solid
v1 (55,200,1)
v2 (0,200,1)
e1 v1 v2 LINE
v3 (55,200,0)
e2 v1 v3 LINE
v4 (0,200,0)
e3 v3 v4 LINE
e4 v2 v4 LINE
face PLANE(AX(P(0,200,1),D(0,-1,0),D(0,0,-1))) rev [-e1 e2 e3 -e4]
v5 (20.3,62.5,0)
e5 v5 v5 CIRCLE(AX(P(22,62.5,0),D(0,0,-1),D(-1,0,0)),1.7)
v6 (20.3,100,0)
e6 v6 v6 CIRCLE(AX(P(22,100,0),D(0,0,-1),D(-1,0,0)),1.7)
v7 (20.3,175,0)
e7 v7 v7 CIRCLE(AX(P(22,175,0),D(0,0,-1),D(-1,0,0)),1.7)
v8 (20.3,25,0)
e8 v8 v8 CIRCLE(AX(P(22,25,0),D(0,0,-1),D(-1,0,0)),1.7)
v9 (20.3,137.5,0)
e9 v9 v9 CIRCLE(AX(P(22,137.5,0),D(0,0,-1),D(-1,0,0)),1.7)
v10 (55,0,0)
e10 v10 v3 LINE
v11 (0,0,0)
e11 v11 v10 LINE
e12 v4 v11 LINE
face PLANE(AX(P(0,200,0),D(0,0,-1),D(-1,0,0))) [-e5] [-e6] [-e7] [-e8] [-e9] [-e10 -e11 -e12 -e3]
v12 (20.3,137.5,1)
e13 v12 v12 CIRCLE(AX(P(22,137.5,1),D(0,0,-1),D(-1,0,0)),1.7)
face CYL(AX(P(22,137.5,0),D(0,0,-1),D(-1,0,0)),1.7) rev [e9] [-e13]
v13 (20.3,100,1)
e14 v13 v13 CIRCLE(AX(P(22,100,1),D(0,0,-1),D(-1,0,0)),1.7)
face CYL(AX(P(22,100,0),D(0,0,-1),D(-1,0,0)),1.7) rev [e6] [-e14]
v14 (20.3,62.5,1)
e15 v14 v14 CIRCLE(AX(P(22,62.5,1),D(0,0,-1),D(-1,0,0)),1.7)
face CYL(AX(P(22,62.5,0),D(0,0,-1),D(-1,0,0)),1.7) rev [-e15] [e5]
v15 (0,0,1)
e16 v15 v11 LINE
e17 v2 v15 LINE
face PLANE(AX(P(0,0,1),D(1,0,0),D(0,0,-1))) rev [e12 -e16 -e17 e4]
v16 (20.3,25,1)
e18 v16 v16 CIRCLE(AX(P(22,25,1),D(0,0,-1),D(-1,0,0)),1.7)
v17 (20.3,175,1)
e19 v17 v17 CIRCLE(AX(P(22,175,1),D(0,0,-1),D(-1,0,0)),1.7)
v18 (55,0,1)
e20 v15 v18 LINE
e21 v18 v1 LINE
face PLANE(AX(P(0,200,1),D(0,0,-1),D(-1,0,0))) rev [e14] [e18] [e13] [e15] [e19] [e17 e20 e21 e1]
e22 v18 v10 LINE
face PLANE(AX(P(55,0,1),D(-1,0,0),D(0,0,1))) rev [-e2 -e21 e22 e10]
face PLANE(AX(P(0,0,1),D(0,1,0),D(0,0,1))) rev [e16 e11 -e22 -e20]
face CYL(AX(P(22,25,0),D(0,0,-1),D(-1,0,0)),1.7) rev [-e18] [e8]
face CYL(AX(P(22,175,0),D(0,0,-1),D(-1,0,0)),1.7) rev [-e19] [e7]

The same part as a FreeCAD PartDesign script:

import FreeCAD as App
import Part
import Sketcher


def add_polygon(sketch, points):
    """Adds a closed chain of lines whose ends are joined by coincident constraints."""
    first, n = sketch.GeometryCount, len(points)
    for a, b in zip(points, points[1:] + points[:1]):
        sketch.addGeometry(Part.LineSegment(App.Vector(*a, 0), App.Vector(*b, 0)), False)
    for i in range(n):
        sketch.addConstraint(Sketcher.Constraint("Coincident", first + i, 2, first + (i + 1) % n, 1))

doc = App.newDocument("Part")
body = doc.addObject("PartDesign::Body", "Body")

# Sketch on XY plane
sketch1 = body.newObject("Sketcher::SketchObject", "Sketch")
sketch1.AttachmentSupport = (doc.getObject("XY_Plane"), [""])
sketch1.MapMode = "FlatFace"
add_polygon(sketch1, [(0, 200), (0, 0), (55, 0), (55, 200)])  # lines 0-3
sketch1.addConstraint(Sketcher.Constraint("Vertical", 0))
sketch1.addConstraint(Sketcher.Constraint("Horizontal", 1))
sketch1.addConstraint(Sketcher.Constraint("Vertical", 2))
sketch1.addConstraint(Sketcher.Constraint("Horizontal", 3))
sketch1.addConstraint(Sketcher.Constraint("Coincident", 0, 2, -1, 1))
sketch1.addConstraint(Sketcher.Constraint("DistanceX", 1, 1, 1, 2, 55.0))
sketch1.addConstraint(Sketcher.Constraint("DistanceY", 0, 2, 0, 1, 200.0))
pad1 = body.newObject("PartDesign::Pad", "Pad")
pad1.Profile = sketch1
pad1.Length = 1

# Sketch on XY plane
sketch2 = body.newObject("Sketcher::SketchObject", "Sketch001")
sketch2.AttachmentSupport = (doc.getObject("XY_Plane"), [""])
sketch2.MapMode = "FlatFace"
sketch2.addGeometry(Part.Circle(App.Vector(22, 175, 0), App.Vector(0, 0, 1), 1.7), False)
sketch2.addGeometry(Part.Circle(App.Vector(22, 137.5, 0), App.Vector(0, 0, 1), 1.7), False)
sketch2.addGeometry(Part.Circle(App.Vector(22, 100, 0), App.Vector(0, 0, 1), 1.7), False)
sketch2.addGeometry(Part.Circle(App.Vector(22, 62.5, 0), App.Vector(0, 0, 1), 1.7), False)
sketch2.addGeometry(Part.Circle(App.Vector(22, 25, 0), App.Vector(0, 0, 1), 1.7), False)
sketch2.addConstraint(Sketcher.Constraint("Equal", 0, 1))
sketch2.addConstraint(Sketcher.Constraint("Equal", 1, 2))
sketch2.addConstraint(Sketcher.Constraint("Equal", 2, 3))
sketch2.addConstraint(Sketcher.Constraint("Equal", 3, 4))
sketch2.addConstraint(Sketcher.Constraint("Vertical", 0, 3, 1, 3))
sketch2.addConstraint(Sketcher.Constraint("Vertical", 1, 3, 2, 3))
sketch2.addConstraint(Sketcher.Constraint("Vertical", 2, 3, 3, 3))
sketch2.addConstraint(Sketcher.Constraint("Vertical", 3, 3, 4, 3))
sketch2.addConstraint(Sketcher.Constraint("Diameter", 0, 3.4))
sketch2.addConstraint(Sketcher.Constraint("DistanceX", -1, 1, 0, 3, 22.0))
sketch2.addConstraint(Sketcher.Constraint("DistanceY", -1, 1, 0, 3, 175.0))
sketch2.addConstraint(Sketcher.Constraint("DistanceY", -1, 1, 2, 3, 100.0))
sketch2.addConstraint(Sketcher.Constraint("DistanceY", -1, 1, 4, 3, 25.0))
sketch2.addConstraint(Sketcher.Constraint("DistanceY", 3, 3, 1, 3, 75.0))
sketch2.addConstraint(Sketcher.Constraint("DistanceY", -1, 1, 1, 3, 137.5))
doc.recompute()
hole = body.newObject("PartDesign::Hole", "Hole")
hole.Profile = sketch2
hole.ThreadType = "None"
hole.Diameter = 3.4
hole.DepthType = "Dimension"
hole.Depth = 5
hole.DrillPoint = "Angled"
hole.DrillPointAngle = 118
hole.Reversed = True

doc.recompute()
